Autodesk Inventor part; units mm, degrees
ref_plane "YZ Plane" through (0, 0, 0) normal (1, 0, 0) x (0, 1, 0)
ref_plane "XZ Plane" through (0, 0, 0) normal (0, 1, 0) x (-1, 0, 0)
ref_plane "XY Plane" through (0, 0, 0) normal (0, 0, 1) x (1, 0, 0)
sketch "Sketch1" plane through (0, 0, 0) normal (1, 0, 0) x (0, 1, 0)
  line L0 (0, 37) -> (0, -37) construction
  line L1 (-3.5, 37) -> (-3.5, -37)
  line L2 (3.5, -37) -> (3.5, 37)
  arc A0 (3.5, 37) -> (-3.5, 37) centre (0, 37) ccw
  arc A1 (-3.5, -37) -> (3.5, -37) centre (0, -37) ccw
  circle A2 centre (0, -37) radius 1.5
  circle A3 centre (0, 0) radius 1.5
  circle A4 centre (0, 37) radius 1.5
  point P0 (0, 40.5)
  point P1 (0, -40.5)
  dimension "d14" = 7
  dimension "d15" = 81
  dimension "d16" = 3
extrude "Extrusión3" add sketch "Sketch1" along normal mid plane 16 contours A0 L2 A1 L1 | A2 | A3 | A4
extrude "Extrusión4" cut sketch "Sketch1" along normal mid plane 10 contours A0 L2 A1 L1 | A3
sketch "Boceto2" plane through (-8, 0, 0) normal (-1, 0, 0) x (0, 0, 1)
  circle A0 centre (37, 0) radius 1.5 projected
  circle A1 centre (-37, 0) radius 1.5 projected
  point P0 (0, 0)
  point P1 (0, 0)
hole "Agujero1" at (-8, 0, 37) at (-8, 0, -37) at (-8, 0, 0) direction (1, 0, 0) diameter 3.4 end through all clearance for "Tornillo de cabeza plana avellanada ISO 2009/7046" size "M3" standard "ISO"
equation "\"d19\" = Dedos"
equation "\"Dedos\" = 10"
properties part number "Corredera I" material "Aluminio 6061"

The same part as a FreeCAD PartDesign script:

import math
import FreeCAD as App
import Part
import Sketcher

doc = App.newDocument("Part")
params = doc.addObject("Spreadsheet::Sheet", "Params")
for row, (alias, value) in enumerate([
    ("sketch1_radius", "3.5 mm"),
    ("sketch1_height", "74 mm"),
    ("pad1_length", "16 mm"),
    ("sketch2_diameter", "3 mm"),
    ("sketch2_radius", "3.5 mm"),
    ("sketch2_height", "74 mm"),
    ("pocket1_length", "10 mm"),
    ("sketch3_diameter", "3.4 mm"),
    ("hole_diameter", "3.4 mm"),
], start=1):
    params.set(f"A{row}", alias)
    params.set(f"B{row}", "=" + value)
    params.setAlias(f"B{row}", alias)

body = doc.addObject("PartDesign::Body", "Body")
body.AllowCompound = True

sketch1 = body.newObject("Sketcher::SketchObject", "Sketch")
sketch1.AttachmentSupport = (doc.getObject("YZ_Plane"), [""])
sketch1.MapMode = "FlatFace"
sketch1.addGeometry(Part.ArcOfCircle(Part.Circle(App.Vector(0, 37, 0), App.Vector(0, 0, 1), 3.5), math.radians(0), math.radians(180)), False)
sketch1.addGeometry(Part.LineSegment(App.Vector(-3.5, 37, 0), App.Vector(-3.5, -37, 0)), False)
sketch1.addGeometry(Part.ArcOfCircle(Part.Circle(App.Vector(0, -37, 0), App.Vector(0, 0, 1), 3.5), math.radians(180), math.radians(360)), False)
sketch1.addGeometry(Part.LineSegment(App.Vector(3.5, -37, 0), App.Vector(3.5, 37, 0)), False)
sketch1.addConstraint(Sketcher.Constraint("Tangent", 0, 2, 1, 1))
sketch1.addConstraint(Sketcher.Constraint("Tangent", 1, 2, 2, 1))
sketch1.addConstraint(Sketcher.Constraint("Tangent", 2, 2, 3, 1))
sketch1.addConstraint(Sketcher.Constraint("Tangent", 3, 2, 0, 1))
sketch1.addConstraint(Sketcher.Constraint("Vertical", 1))
sketch1.addConstraint(Sketcher.Constraint("Vertical", 3))
sketch1.addConstraint(Sketcher.Constraint("Symmetric", 0, 3, 2, 3, -1, 1))
sketch1.addConstraint(Sketcher.Constraint("Radius", 0, 3.5))
sketch1.addConstraint(Sketcher.Constraint("DistanceY", 1, 2, 1, 1, 74.0))
sketch1.setExpression("Constraints[7]", "Params.sketch1_radius")
sketch1.setExpression("Constraints[8]", "Params.sketch1_height")
pad1 = body.newObject("PartDesign::Pad", "Pad")
pad1.Profile = sketch1
pad1.setExpression("Length", "Params.pad1_length")
pad1.Midplane = True

sketch2 = body.newObject("Sketcher::SketchObject", "Sketch001")
sketch2.AttachmentSupport = (doc.getObject("YZ_Plane"), [""])
sketch2.MapMode = "FlatFace"
sketch2.addGeometry(Part.ArcOfCircle(Part.Circle(App.Vector(0, 37, 0), App.Vector(0, 0, 1), 3.5), math.radians(0), math.radians(180)), False)
sketch2.addGeometry(Part.LineSegment(App.Vector(-3.5, 37, 0), App.Vector(-3.5, -37, 0)), False)
sketch2.addGeometry(Part.ArcOfCircle(Part.Circle(App.Vector(0, -37, 0), App.Vector(0, 0, 1), 3.5), math.radians(180), math.radians(360)), False)
sketch2.addGeometry(Part.LineSegment(App.Vector(3.5, -37, 0), App.Vector(3.5, 37, 0)), False)
sketch2.addGeometry(Part.Circle(App.Vector(0, -37, 0), App.Vector(0, 0, 1), 1.5), False)
sketch2.addGeometry(Part.Circle(App.Vector(0, 37, 0), App.Vector(0, 0, 1), 1.5), False)
sketch2.addConstraint(Sketcher.Constraint("Tangent", 0, 2, 1, 1))
sketch2.addConstraint(Sketcher.Constraint("Tangent", 1, 2, 2, 1))
sketch2.addConstraint(Sketcher.Constraint("Tangent", 2, 2, 3, 1))
sketch2.addConstraint(Sketcher.Constraint("Tangent", 3, 2, 0, 1))
sketch2.addConstraint(Sketcher.Constraint("Vertical", 1))
sketch2.addConstraint(Sketcher.Constraint("Vertical", 3))
sketch2.addConstraint(Sketcher.Constraint("Coincident", 4, 3, 2, 3))
sketch2.addConstraint(Sketcher.Constraint("Coincident", 5, 3, 0, 3))
sketch2.addConstraint(Sketcher.Constraint("Equal", 4, 5))
sketch2.addConstraint(Sketcher.Constraint("Symmetric", 0, 3, 2, 3, -1, 1))
sketch2.addConstraint(Sketcher.Constraint("Diameter", 4, 3.0))
sketch2.addConstraint(Sketcher.Constraint("Radius", 0, 3.5))
sketch2.addConstraint(Sketcher.Constraint("DistanceY", 1, 2, 1, 1, 74.0))
sketch2.setExpression("Constraints[10]", "Params.sketch2_diameter")
sketch2.setExpression("Constraints[11]", "Params.sketch2_radius")
sketch2.setExpression("Constraints[12]", "Params.sketch2_height")
pocket1 = body.newObject("PartDesign::Pocket", "Pocket")
pocket1.Profile = sketch2
pocket1.setExpression("Length", "Params.pocket1_length")
pocket1.Midplane = True

sketch3 = body.newObject("Sketcher::SketchObject", "Sketch002")
sketch3.AttachmentSupport = (doc.getObject("YZ_Plane"), [""])
sketch3.MapMode = "FlatFace"
sketch3.AttachmentOffset = App.Placement(App.Vector(0, 0, -8), App.Rotation())
sketch3.addGeometry(Part.Circle(App.Vector(0, 37, 0), App.Vector(0, 0, 1), 1.7), False)
sketch3.addGeometry(Part.Circle(App.Vector(0, -37, 0), App.Vector(0, 0, 1), 1.7), False)
sketch3.addGeometry(Part.Circle(App.Vector(0, 0, 0), App.Vector(0, 0, 1), 1.7), False)
sketch3.addConstraint(Sketcher.Constraint("Coincident", 2, 3, -1, 1))
sketch3.addConstraint(Sketcher.Constraint("Equal", 0, 1))
sketch3.addConstraint(Sketcher.Constraint("Equal", 1, 2))
sketch3.addConstraint(Sketcher.Constraint("Symmetric", 0, 3, 1, 3, -1, 1))
sketch3.addConstraint(Sketcher.Constraint("PointOnObject", 0, 3, -2))
sketch3.addConstraint(Sketcher.Constraint("Diameter", 0, 3.4))
sketch3.addConstraint(Sketcher.Constraint("DistanceY", -1, 1, 0, 3, 37.0))
sketch3.setExpression("Constraints[5]", "Params.sketch3_diameter")
doc.recompute()
hole = body.newObject("PartDesign::Hole", "Hole")
hole.Profile = sketch3
hole.ThreadType = "None"
hole.setExpression("Diameter", "Params.hole_diameter")
hole.DepthType = "ThroughAll"
hole.Reversed = True

doc.recompute()
